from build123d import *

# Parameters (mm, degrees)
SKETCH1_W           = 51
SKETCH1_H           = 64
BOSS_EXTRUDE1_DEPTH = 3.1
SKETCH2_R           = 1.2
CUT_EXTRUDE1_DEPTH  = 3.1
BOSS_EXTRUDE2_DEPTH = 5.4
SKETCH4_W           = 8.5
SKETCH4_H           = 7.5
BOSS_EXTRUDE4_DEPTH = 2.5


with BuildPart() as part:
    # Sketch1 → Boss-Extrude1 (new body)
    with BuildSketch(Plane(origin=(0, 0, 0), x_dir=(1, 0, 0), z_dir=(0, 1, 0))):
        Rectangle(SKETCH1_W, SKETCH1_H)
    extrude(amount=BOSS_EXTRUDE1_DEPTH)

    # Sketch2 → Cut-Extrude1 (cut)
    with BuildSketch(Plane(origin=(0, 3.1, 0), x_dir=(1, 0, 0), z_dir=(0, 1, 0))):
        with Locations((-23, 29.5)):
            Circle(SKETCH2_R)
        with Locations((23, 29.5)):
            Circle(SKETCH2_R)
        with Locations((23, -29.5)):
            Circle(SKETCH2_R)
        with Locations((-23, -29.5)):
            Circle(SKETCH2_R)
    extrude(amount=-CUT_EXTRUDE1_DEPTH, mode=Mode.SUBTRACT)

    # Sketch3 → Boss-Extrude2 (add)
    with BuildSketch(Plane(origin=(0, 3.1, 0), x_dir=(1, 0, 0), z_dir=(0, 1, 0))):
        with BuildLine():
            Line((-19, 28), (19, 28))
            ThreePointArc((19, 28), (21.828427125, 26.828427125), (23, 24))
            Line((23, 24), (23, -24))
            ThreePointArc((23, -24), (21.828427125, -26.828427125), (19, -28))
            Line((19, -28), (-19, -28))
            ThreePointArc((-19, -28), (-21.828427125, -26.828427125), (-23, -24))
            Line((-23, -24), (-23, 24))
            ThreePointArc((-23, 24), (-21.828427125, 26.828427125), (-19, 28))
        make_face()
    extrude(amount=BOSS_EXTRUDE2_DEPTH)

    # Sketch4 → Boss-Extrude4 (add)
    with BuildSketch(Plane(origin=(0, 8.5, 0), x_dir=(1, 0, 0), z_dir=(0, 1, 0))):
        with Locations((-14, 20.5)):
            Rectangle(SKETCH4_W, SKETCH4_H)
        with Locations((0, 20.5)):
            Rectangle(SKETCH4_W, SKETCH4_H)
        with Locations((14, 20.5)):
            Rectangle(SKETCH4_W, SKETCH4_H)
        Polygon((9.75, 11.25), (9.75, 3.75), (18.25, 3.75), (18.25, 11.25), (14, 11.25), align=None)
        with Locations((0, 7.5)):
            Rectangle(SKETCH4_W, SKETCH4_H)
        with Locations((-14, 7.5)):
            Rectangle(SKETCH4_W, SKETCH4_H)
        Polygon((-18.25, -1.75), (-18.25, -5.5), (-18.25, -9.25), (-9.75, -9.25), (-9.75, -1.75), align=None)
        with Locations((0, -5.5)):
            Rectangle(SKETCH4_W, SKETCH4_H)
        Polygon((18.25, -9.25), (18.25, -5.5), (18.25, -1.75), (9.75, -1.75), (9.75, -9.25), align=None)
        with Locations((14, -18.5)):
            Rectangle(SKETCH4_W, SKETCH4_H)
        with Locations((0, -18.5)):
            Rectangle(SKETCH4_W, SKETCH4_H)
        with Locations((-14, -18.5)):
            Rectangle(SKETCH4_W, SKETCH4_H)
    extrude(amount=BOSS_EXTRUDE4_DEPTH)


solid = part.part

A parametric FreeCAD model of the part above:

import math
import FreeCAD as App
import Part
import Sketcher
from FreeCAD import Vector


def add_polygon(sketch, points):
    """Adds a closed chain of lines whose ends are joined by coincident constraints."""
    first, n = sketch.GeometryCount, len(points)
    for a, b in zip(points, points[1:] + points[:1]):
        sketch.addGeometry(Part.LineSegment(App.Vector(*a, 0), App.Vector(*b, 0)), False)
    for i in range(n):
        sketch.addConstraint(Sketcher.Constraint("Coincident", first + i, 2, first + (i + 1) % n, 1))

doc = App.newDocument("Part")
body = doc.addObject("PartDesign::Body", "Body")

sketch1 = body.newObject("Sketcher::SketchObject", "Sketch")
sketch1.AttachmentSupport = (doc.getObject("XZ_Plane"), [""])
sketch1.MapMode = "FlatFace"
add_polygon(sketch1, [(-26, -32), (-26, 32), (26, 32), (26, -32)])
sketch1.addConstraint([
    Sketcher.Constraint("Vertical", 0),
    Sketcher.Constraint("Horizontal", 1),
    Sketcher.Constraint("Vertical", 2),
    Sketcher.Constraint("Horizontal", 3),
    Sketcher.Constraint("Symmetric", 0, 2, 2, 2, -1, 1),
    Sketcher.Constraint("DistanceX", 1, 1, 1, 2, 51.0),
    Sketcher.Constraint("DistanceY", 0, 1, 0, 2, 64.0),
])
pad1 = body.newObject("PartDesign::Pad", "Pad")
pad1.Profile = sketch1
pad1.Length = 3.1
pad1.Reversed = True

sketch2 = body.newObject("Sketcher::SketchObject", "Sketch001")
sketch2.AttachmentSupport = (doc.getObject("XZ_Plane"), [""])
sketch2.MapMode = "FlatFace"
sketch2.AttachmentOffset = App.Placement(Vector(0, 0, -3.1), App.Rotation())
sketch2.addGeometry([
    Part.Circle(Vector(-23, -29.5, 0), Vector(0, 0, 1), 1.2),
    Part.Circle(Vector(23, -29.5, 0), Vector(0, 0, 1), 1.2),
    Part.Circle(Vector(23, 29.5, 0), Vector(0, 0, 1), 1.2),
    Part.Circle(Vector(-23, 29.5, 0), Vector(0, 0, 1), 1.2),
], False)
sketch2.addConstraint([
    Sketcher.Constraint("Equal", 0, 1),
    Sketcher.Constraint("Equal", 1, 2),
    Sketcher.Constraint("Equal", 2, 3),
    Sketcher.Constraint("Symmetric", 0, 3, 2, 3, -1, 1),
    Sketcher.Constraint("Symmetric", 1, 3, 3, 3, -1, 1),
    Sketcher.Constraint("Symmetric", 0, 3, 1, 3, -2),
    Sketcher.Constraint("Diameter", 0, 2.4),
    Sketcher.Constraint("DistanceX", 0, 3, -1, 1, 23.0),
    Sketcher.Constraint("DistanceY", 1, 3, 2, 3, 59.0),
])
pocket1 = body.newObject("PartDesign::Pocket", "Pocket")
pocket1.Profile = sketch2
pocket1.Length = 3.1
pocket1.Reversed = True

sketch3 = body.newObject("Sketcher::SketchObject", "Sketch002")
sketch3.AttachmentSupport = (doc.getObject("XZ_Plane"), [""])
sketch3.MapMode = "FlatFace"
sketch3.AttachmentOffset = App.Placement(Vector(0, 0, -3.1), App.Rotation())
sketch3.addGeometry([
    Part.LineSegment(Vector(19, -28, 0), Vector(-19, -28, 0)),
    Part.ArcOfCircle(Part.Circle(Vector(-19, -24, 0), Vector(0, 0, 1), 4), math.radians(180), math.radians(270)),
    Part.LineSegment(Vector(-23, -24, 0), Vector(-23, 24, 0)),
    Part.ArcOfCircle(Part.Circle(Vector(-19, 24, 0), Vector(0, 0, 1), 4), math.radians(90), math.radians(180)),
    Part.LineSegment(Vector(-19, 28, 0), Vector(19, 28, 0)),
    Part.ArcOfCircle(Part.Circle(Vector(19, 24, 0), Vector(0, 0, 1), 4), math.radians(0), math.radians(90)),
    Part.LineSegment(Vector(23, 24, 0), Vector(23, -24, 0)),
    Part.ArcOfCircle(Part.Circle(Vector(19, -24, 0), Vector(0, 0, 1), 4), math.radians(-90), math.radians(0)),
], False)
sketch3.addConstraint([
    Sketcher.Constraint("Tangent", 0, 2, 1, 2),
    Sketcher.Constraint("Tangent", 1, 1, 2, 1),
    Sketcher.Constraint("Tangent", 2, 2, 3, 2),
    Sketcher.Constraint("Tangent", 3, 1, 4, 1),
    Sketcher.Constraint("Tangent", 4, 2, 5, 2),
    Sketcher.Constraint("Tangent", 5, 1, 6, 1),
    Sketcher.Constraint("Tangent", 6, 2, 7, 2),
    Sketcher.Constraint("Tangent", 7, 1, 0, 1),
    Sketcher.Constraint("Horizontal", 0),
    Sketcher.Constraint("Vertical", 2),
    Sketcher.Constraint("Horizontal", 4),
    Sketcher.Constraint("Vertical", 6),
    Sketcher.Constraint("Equal", 1, 3),
    Sketcher.Constraint("Equal", 3, 5),
    Sketcher.Constraint("Equal", 5, 7),
    Sketcher.Constraint("Symmetric", 1, 3, 5, 3, -1, 1),
    Sketcher.Constraint("Radius", 1, 4.0),
    Sketcher.Constraint("DistanceX", 0, 2, 0, 1, 38.0),
    Sketcher.Constraint("DistanceY", 2, 1, 2, 2, 48.0),
])
pad2 = body.newObject("PartDesign::Pad", "Pad001")
pad2.Profile = sketch3
pad2.Length = 5.4
pad2.Reversed = True

sketch4 = body.newObject("Sketcher::SketchObject", "Sketch003")
sketch4.AttachmentSupport = (doc.getObject("XZ_Plane"), [""])
sketch4.MapMode = "FlatFace"
sketch4.AttachmentOffset = App.Placement(Vector(0, 0, -8.5), App.Rotation())
add_polygon(sketch4, [(-18, -24), (-18, -17), (-10, -17), (-10, -24)])
add_polygon(sketch4, [(-4, -24), (-4, -17), (4, -17), (4, -24)])
add_polygon(sketch4, [(10, -24), (10, -17), (18, -17), (18, -24)])
add_polygon(sketch4, [(10, -11), (10, -4), (18, -4), (18, -11)])
add_polygon(sketch4, [(-4, -11), (-4, -4), (4, -4), (4, -11)])
add_polygon(sketch4, [(-18, -11), (-18, -4), (-10, -4), (-10, -11)])
add_polygon(sketch4, [(-18, 2), (-18, 9), (-10, 9), (-10, 2)])
add_polygon(sketch4, [(-4, 2), (-4, 9), (4, 9), (4, 2)])
add_polygon(sketch4, [(18, 9), (18, 2), (10, 2), (10, 9)])
add_polygon(sketch4, [(10, 15), (10, 22), (18, 22), (18, 15)])
add_polygon(sketch4, [(-4, 15), (-4, 22), (4, 22), (4, 15)])
add_polygon(sketch4, [(-18, 15), (-18, 22), (-10, 22), (-10, 15)])
sketch4.addConstraint([
    Sketcher.Constraint("Vertical", 0),
    Sketcher.Constraint("Horizontal", 1),
    Sketcher.Constraint("Vertical", 2),
    Sketcher.Constraint("Horizontal", 3),
    Sketcher.Constraint("Vertical", 4),
    Sketcher.Constraint("Horizontal", 5),
    Sketcher.Constraint("Vertical", 6),
    Sketcher.Constraint("Horizontal", 7),
    Sketcher.Constraint("Vertical", 8),
    Sketcher.Constraint("Horizontal", 9),
    Sketcher.Constraint("Vertical", 10),
    Sketcher.Constraint("Horizontal", 11),
    Sketcher.Constraint("Vertical", 12),
    Sketcher.Constraint("Horizontal", 13),
    Sketcher.Constraint("Vertical", 14),
    Sketcher.Constraint("Horizontal", 15),
    Sketcher.Constraint("Vertical", 16),
    Sketcher.Constraint("Horizontal", 17),
    Sketcher.Constraint("Vertical", 18),
    Sketcher.Constraint("Horizontal", 19),
    Sketcher.Constraint("Vertical", 20),
    Sketcher.Constraint("Horizontal", 21),
    Sketcher.Constraint("Vertical", 22),
    Sketcher.Constraint("Horizontal", 23),
    Sketcher.Constraint("Vertical", 24),
    Sketcher.Constraint("Horizontal", 25),
    Sketcher.Constraint("Vertical", 26),
    Sketcher.Constraint("Horizontal", 27),
    Sketcher.Constraint("Vertical", 28),
    Sketcher.Constraint("Horizontal", 29),
    Sketcher.Constraint("Vertical", 30),
    Sketcher.Constraint("Horizontal", 31),
    Sketcher.Constraint("Vertical", 32),
    Sketcher.Constraint("Horizontal", 33),
    Sketcher.Constraint("Vertical", 34),
    Sketcher.Constraint("Horizontal", 35),
    Sketcher.Constraint("Vertical", 36),
    Sketcher.Constraint("Horizontal", 37),
    Sketcher.Constraint("Vertical", 38),
    Sketcher.Constraint("Horizontal", 39),
    Sketcher.Constraint("Vertical", 40),
    Sketcher.Constraint("Horizontal", 41),
    Sketcher.Constraint("Vertical", 42),
    Sketcher.Constraint("Horizontal", 43),
    Sketcher.Constraint("Vertical", 44),
    Sketcher.Constraint("Horizontal", 45),
    Sketcher.Constraint("Vertical", 46),
    Sketcher.Constraint("Horizontal", 47),
    Sketcher.Constraint("Symmetric", 1, 2, 8, 2, -2),
    Sketcher.Constraint("Symmetric", 3, 2, 10, 2, -2),
    Sketcher.Constraint("Symmetric", 13, 2, 20, 2, -2),
    Sketcher.Constraint("Symmetric", 15, 2, 22, 2, -2),
    Sketcher.Constraint("Symmetric", 27, 2, 32, 2, -2),
    Sketcher.Constraint("Symmetric", 25, 2, 34, 2, -2),
    Sketcher.Constraint("Symmetric", 37, 2, 44, 2, -2),
    Sketcher.Constraint("Symmetric", 39, 2, 46, 2, -2),
    Sketcher.Constraint("Horizontal", 1, 2, 4, 2),
    Sketcher.Constraint("Horizontal", 3, 2, 6, 2),
    Sketcher.Constraint("Horizontal", 13, 2, 16, 2),
    Sketcher.Constraint("Horizontal", 15, 2, 18, 2),
    Sketcher.Constraint("Horizontal", 25, 2, 28, 2),
    Sketcher.Constraint("Horizontal", 27, 2, 30, 2),
    Sketcher.Constraint("Horizontal", 37, 2, 40, 2),
    Sketcher.Constraint("Horizontal", 39, 2, 42, 2),
    Sketcher.Constraint("Vertical", 11, 2, 12, 2),
    Sketcher.Constraint("Vertical", 10, 2, 13, 2),
    Sketcher.Constraint("Vertical", 7, 2, 16, 2),
    Sketcher.Constraint("Vertical", 6, 2, 17, 2),
    Sketcher.Constraint("Vertical", 23, 2, 24, 2),
    Sketcher.Constraint("Vertical", 22, 2, 25, 2),
    Sketcher.Constraint("Vertical", 19, 2, 28, 2),
    Sketcher.Constraint("Vertical", 18, 2, 29, 2),
    Sketcher.Constraint("Vertical", 34, 2, 36, 2),
    Sketcher.Constraint("Vertical", 35, 2, 37, 2),
    Sketcher.Constraint("Vertical", 31, 2, 40, 2),
    Sketcher.Constraint("Vertical", 30, 2, 41, 2),
    Sketcher.Constraint("Equal", 3, 5),
    Sketcher.Constraint("Equal", 10, 12),
    Sketcher.Constraint("Equal", 22, 24),
    Sketcher.Constraint("Equal", 34, 36),
    Sketcher.Constraint("DistanceX", 1, 1, 1, 2, 8.5),
    Sketcher.Constraint("DistanceY", 0, 1, 0, 2, 7.5),
    Sketcher.Constraint("DistanceX", 0, 2, 4, 2, 14.0),
    Sketcher.Constraint("DistanceX", 4, 2, 8, 2, 14.0),
    Sketcher.Constraint("DistanceY", 8, 2, 12, 2, 13.0),
    Sketcher.Constraint("DistanceY", 20, 2, 24, 2, 13.0),
    Sketcher.Constraint("DistanceY", 34, 2, 36, 2, 13.0),
    Sketcher.Constraint("DistanceY", 0, 2, -1, 1, 16.75),
])
pad3 = body.newObject("PartDesign::Pad", "Pad002")
pad3.Profile = sketch4
pad3.Length = 2.5
pad3.Reversed = True

doc.recompute()
